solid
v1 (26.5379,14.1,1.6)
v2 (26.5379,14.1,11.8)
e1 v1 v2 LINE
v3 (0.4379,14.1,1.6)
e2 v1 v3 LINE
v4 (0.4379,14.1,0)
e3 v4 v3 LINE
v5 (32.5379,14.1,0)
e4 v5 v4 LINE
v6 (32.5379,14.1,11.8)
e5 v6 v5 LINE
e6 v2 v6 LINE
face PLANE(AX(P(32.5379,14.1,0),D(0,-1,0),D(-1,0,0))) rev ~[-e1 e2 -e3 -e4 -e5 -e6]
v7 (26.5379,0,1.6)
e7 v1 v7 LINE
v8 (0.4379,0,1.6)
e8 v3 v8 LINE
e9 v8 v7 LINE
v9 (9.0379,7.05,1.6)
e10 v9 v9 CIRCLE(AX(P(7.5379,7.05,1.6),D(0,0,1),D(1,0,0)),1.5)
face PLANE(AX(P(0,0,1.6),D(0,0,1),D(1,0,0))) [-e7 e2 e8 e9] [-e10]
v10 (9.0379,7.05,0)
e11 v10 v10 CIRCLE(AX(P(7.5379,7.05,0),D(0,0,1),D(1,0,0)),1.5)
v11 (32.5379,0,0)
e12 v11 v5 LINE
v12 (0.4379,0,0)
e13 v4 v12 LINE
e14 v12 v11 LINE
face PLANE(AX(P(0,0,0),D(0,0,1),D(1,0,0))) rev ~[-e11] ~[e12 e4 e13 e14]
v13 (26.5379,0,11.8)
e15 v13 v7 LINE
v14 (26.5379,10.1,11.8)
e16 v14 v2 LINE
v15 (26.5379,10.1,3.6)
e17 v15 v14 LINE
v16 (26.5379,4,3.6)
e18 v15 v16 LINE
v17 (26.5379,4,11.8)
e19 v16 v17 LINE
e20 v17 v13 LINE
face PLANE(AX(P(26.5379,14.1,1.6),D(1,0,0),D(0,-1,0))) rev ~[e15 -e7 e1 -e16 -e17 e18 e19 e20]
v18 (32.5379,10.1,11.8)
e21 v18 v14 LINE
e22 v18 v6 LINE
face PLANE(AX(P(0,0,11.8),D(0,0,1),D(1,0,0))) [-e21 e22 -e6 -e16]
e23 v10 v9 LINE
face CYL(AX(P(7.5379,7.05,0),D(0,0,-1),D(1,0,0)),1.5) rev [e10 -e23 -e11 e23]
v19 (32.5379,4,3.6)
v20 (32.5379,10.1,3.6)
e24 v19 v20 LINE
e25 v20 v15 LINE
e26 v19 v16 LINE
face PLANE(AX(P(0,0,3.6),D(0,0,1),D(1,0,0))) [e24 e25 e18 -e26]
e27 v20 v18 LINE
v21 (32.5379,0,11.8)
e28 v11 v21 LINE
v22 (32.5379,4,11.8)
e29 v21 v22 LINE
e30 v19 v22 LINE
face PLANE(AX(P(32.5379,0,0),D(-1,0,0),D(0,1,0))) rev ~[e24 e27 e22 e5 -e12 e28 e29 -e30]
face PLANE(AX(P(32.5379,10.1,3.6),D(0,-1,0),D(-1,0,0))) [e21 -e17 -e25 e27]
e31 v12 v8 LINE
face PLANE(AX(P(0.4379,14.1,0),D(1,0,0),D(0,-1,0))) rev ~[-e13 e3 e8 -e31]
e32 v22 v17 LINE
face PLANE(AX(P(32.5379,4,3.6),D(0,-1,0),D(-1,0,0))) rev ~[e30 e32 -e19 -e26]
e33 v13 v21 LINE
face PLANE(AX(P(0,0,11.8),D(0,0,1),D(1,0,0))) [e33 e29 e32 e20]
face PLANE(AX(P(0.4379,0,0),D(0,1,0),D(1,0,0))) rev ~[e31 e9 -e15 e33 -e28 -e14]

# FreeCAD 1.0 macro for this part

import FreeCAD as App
import Part
import Sketcher

V = App.Vector
Q = App.Units.Quantity


def add_polygon(sketch, points):
    """Adds a closed chain of lines whose ends are joined by coincident constraints."""
    first, n = sketch.GeometryCount, len(points)
    for a, b in zip(points, points[1:] + points[:1]):
        sketch.addGeometry(Part.LineSegment(App.Vector(*a, 0), App.Vector(*b, 0)), False)
    for i in range(n):
        sketch.addConstraint(Sketcher.Constraint("Coincident", first + i, 2, first + (i + 1) % n, 1))

doc = App.newDocument("Part")
body = doc.addObject("PartDesign::Body", "Body")

sketch1 = body.newObject("Sketcher::SketchObject", "Sketch")
sketch1.AttachmentSupport = (doc.getObject("XY_Plane"), [""])
sketch1.MapMode = "FlatFace"
add_polygon(sketch1, [(0.4, 14.1), (0.4, 0), (32.5, 0), (32.5, 14.1)])
sketch1.addGeometry(Part.Circle(V(7.5, 7, 0), V(0, 0, 1), 1.5), False)
sketch1.addConstraint([
    Sketcher.Constraint("Vertical", 0),
    Sketcher.Constraint("Horizontal", 1),
    Sketcher.Constraint("Vertical", 2),
    Sketcher.Constraint("Horizontal", 3),
    Sketcher.Constraint("PointOnObject", 0, 2, -1),
    Sketcher.Constraint("Diameter", 4, Q("3 mm")),
    Sketcher.Constraint("DistanceX", 1, 1, 1, 2, Q("32.1 mm")),
    Sketcher.Constraint("DistanceY", 0, 2, 0, 1, Q("14.1 mm")),
    Sketcher.Constraint("DistanceX", 0, 2, 4, 3, Q("7.1 mm")),
    Sketcher.Constraint("DistanceY", -1, 1, 4, 3, Q("7.05 mm")),
    Sketcher.Constraint("DistanceX", -1, 1, 4, 3, Q("7.538 mm")),
])
pad1 = body.newObject("PartDesign::Pad", "Pad")
pad1.Profile = sketch1
pad1.Length = 1.6

sketch2 = body.newObject("Sketcher::SketchObject", "Sketch001")
sketch2.AttachmentSupport = (doc.getObject("XY_Plane"), [""])
sketch2.MapMode = "FlatFace"
sketch2.AttachmentOffset = App.Placement(V(0, 0, 1.6), App.Rotation())
add_polygon(sketch2, [(27, 14), (27, 0), (33, 0), (33, 14)])
sketch2.addConstraint([
    Sketcher.Constraint("Vertical", 0),
    Sketcher.Constraint("Horizontal", 1),
    Sketcher.Constraint("Vertical", 2),
    Sketcher.Constraint("Horizontal", 3),
    Sketcher.Constraint("PointOnObject", 0, 2, -1),
    Sketcher.Constraint("DistanceX", 1, 1, 1, 2, Q("6 mm")),
    Sketcher.Constraint("DistanceY", 0, 2, 0, 1, Q("14.1 mm")),
    Sketcher.Constraint("DistanceX", -1, 1, 0, 2, Q("26.538 mm")),
])
pad2 = body.newObject("PartDesign::Pad", "Pad001")
pad2.Profile = sketch2
pad2.Length = 2

sketch3 = body.newObject("Sketcher::SketchObject", "Sketch002")
sketch3.AttachmentSupport = (doc.getObject("XY_Plane"), [""])
sketch3.MapMode = "FlatFace"
sketch3.AttachmentOffset = App.Placement(V(0, 0, 3.6), App.Rotation())
add_polygon(sketch3, [(26.5, 4), (26.5, 0), (32.5, 0), (32.5, 4)])
add_polygon(sketch3, [(26.5, 10.1), (32.5, 10.1), (32.5, 14.1), (26.5, 14.1)])
sketch3.addConstraint([
    Sketcher.Constraint("Vertical", 0),
    Sketcher.Constraint("Horizontal", 1),
    Sketcher.Constraint("Vertical", 2),
    Sketcher.Constraint("Horizontal", 3),
    Sketcher.Constraint("Horizontal", 4),
    Sketcher.Constraint("Vertical", 5),
    Sketcher.Constraint("Horizontal", 6),
    Sketcher.Constraint("Vertical", 7),
    Sketcher.Constraint("PointOnObject", 0, 2, -1),
    Sketcher.Constraint("Vertical", 2, 2, 4, 2),
    Sketcher.Constraint("Vertical", 3, 2, 6, 2),
    Sketcher.Constraint("Equal", 2, 5),
    Sketcher.Constraint("DistanceY", 0, 2, 0, 1, Q("4 mm")),
    Sketcher.Constraint("DistanceX", 1, 1, 1, 2, Q("6 mm")),
    Sketcher.Constraint("DistanceY", -1, 1, 4, 2, Q("10.1 mm")),
    Sketcher.Constraint("DistanceX", -1, 1, 0, 2, Q("26.538 mm")),
])
pad3 = body.newObject("PartDesign::Pad", "Pad002")
pad3.Profile = sketch3
pad3.Length = 8.2

doc.recompute()
